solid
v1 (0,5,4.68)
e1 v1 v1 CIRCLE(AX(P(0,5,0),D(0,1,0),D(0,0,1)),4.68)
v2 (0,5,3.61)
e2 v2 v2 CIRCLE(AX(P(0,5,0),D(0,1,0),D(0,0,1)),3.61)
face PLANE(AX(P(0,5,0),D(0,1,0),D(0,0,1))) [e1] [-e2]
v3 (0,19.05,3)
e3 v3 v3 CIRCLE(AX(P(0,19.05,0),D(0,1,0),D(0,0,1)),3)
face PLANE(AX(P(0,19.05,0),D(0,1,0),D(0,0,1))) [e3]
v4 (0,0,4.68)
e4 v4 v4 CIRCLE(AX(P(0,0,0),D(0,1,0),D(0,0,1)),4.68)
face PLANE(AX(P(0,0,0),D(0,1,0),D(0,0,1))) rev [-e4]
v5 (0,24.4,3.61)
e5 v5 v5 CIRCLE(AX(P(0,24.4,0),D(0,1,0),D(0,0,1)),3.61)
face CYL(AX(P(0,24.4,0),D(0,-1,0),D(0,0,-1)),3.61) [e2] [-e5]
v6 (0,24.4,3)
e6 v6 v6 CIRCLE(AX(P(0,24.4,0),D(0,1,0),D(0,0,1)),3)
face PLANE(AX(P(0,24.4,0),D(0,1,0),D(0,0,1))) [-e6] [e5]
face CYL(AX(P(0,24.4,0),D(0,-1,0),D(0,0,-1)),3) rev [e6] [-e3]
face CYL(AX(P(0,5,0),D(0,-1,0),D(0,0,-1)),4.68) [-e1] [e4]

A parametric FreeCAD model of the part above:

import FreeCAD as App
import Part
import Sketcher

V = App.Vector

doc = App.newDocument("Part")
body = doc.addObject("PartDesign::Body", "Body")

# Sketch on XZ plane
sketch1 = body.newObject("Sketcher::SketchObject", "Sketch")
sketch1.AttachmentSupport = (doc.getObject("XZ_Plane"), [""])
sketch1.MapMode = "FlatFace"
sketch1.addGeometry(Part.Circle(V(0, 0, 0), V(0, 0, 1), 4.7), False)
sketch1.addConstraint([
    Sketcher.Constraint("Coincident", 0, 3, -1, 1),
    Sketcher.Constraint("Diameter", 0, 9.36),
])
pad1 = body.newObject("PartDesign::Pad", "Pad")
pad1.Profile = sketch1
pad1.Length = 5
pad1.Reversed = True

# Sketch on XZ plane
sketch2 = body.newObject("Sketcher::SketchObject", "Sketch001")
sketch2.AttachmentSupport = (doc.getObject("XZ_Plane"), [""])
sketch2.MapMode = "FlatFace"
sketch2.AttachmentOffset = App.Placement(V(0, 0, -5), App.Rotation())
sketch2.addGeometry([
    Part.Circle(V(0, 0, 0), V(0, 0, 1), 3.6),
    Part.Circle(V(0, 0, 0), V(0, 0, 1), 3),
], False)
sketch2.addConstraint([
    Sketcher.Constraint("Coincident", 0, 3, -1, 1),
    Sketcher.Constraint("Coincident", 1, 3, -1, 1),
    Sketcher.Constraint("Diameter", 1, 6.0),
    Sketcher.Constraint("Diameter", 0, 7.22),
])
pad2 = body.newObject("PartDesign::Pad", "Pad001")
pad2.Profile = sketch2
pad2.Length = 19.4
pad2.Reversed = True

# Sketch on XZ plane
sketch3 = body.newObject("Sketcher::SketchObject", "Sketch002")
sketch3.AttachmentSupport = (doc.getObject("XZ_Plane"), [""])
sketch3.MapMode = "FlatFace"
sketch3.AttachmentOffset = App.Placement(V(0, 0, -5), App.Rotation())
sketch3.addGeometry(Part.Circle(V(0, 0, 0), V(0, 0, 1), 3), False)
sketch3.addConstraint([
    Sketcher.Constraint("Coincident", 0, 3, -1, 1),
    Sketcher.Constraint("Diameter", 0, 6.0),
])
pad3 = body.newObject("PartDesign::Pad", "Pad002")
pad3.Profile = sketch3
pad3.Length = 14.05
pad3.Reversed = True

doc.recompute()
